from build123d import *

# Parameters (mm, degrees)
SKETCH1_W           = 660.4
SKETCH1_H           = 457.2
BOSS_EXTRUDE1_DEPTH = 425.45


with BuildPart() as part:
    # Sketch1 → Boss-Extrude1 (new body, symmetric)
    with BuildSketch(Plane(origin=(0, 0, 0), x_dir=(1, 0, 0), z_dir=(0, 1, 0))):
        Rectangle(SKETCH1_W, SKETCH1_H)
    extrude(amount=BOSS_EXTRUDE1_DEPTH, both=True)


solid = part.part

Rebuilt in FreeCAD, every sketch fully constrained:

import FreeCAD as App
import Part
import Sketcher
Q = App.Units.Quantity

doc = App.newDocument("Part")
body = doc.addObject("PartDesign::Body", "Body")

# Sketch on XZ plane
sketch1 = body.newObject("Sketcher::SketchObject", "Sketch")
sketch1.AttachmentSupport = (doc.getObject("XZ_Plane"), [""])
sketch1.MapMode = "FlatFace"
sketch1.addGeometry([
    Part.LineSegment(App.Vector(-330, -229, 0), App.Vector(-330, 229, 0)),
    Part.LineSegment(App.Vector(-330, 229, 0), App.Vector(330, 229, 0)),
    Part.LineSegment(App.Vector(330, 229, 0), App.Vector(330, -229, 0)),
    Part.LineSegment(App.Vector(330, -229, 0), App.Vector(-330, -229, 0)),
], False)
sketch1.addConstraint([
    Sketcher.Constraint("Coincident", 0, 2, 1, 1),
    Sketcher.Constraint("Coincident", 1, 2, 2, 1),
    Sketcher.Constraint("Coincident", 2, 2, 3, 1),
    Sketcher.Constraint("Coincident", 3, 2, 0, 1),
    Sketcher.Constraint("Vertical", 0),
    Sketcher.Constraint("Horizontal", 1),
    Sketcher.Constraint("Vertical", 2),
    Sketcher.Constraint("Horizontal", 3),
    Sketcher.Constraint("Symmetric", 0, 2, 2, 2, -1, 1),
    Sketcher.Constraint("DistanceX", 1, 1, 1, 2, Q("26 in")),
    Sketcher.Constraint("DistanceY", 0, 1, 0, 2, Q("18 in")),
])
pad1 = body.newObject("PartDesign::Pad", "Pad")
pad1.Profile = sketch1
pad1.Length = Q("33.5 in")
pad1.Midplane = True

doc.recompute()
